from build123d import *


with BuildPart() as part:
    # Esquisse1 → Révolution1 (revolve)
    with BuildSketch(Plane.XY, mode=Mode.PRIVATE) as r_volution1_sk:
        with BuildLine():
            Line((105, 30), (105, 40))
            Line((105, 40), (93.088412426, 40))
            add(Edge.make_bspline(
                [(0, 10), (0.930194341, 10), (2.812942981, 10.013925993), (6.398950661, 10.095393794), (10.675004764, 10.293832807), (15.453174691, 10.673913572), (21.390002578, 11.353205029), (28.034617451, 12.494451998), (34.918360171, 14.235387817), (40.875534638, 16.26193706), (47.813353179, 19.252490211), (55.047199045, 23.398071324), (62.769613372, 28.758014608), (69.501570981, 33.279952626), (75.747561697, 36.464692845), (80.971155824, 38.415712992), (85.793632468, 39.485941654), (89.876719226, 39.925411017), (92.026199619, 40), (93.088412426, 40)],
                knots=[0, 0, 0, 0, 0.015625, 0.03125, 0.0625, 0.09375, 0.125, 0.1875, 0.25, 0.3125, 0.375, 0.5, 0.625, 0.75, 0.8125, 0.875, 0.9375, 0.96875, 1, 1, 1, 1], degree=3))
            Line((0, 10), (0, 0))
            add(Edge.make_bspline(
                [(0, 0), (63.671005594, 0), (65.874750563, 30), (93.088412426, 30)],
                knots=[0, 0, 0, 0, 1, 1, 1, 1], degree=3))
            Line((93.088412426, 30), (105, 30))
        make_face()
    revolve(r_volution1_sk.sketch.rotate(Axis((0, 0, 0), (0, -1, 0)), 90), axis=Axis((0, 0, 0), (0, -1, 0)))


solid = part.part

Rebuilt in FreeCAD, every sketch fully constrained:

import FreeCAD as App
import Part
import Sketcher

V = App.Vector

doc = App.newDocument("Part")
body = doc.addObject("PartDesign::Body", "Body")

# Sketch on XY plane
sketch1 = body.newObject("Sketcher::SketchObject", "Sketch")
sketch1.AttachmentSupport = (doc.getObject("XY_Plane"), [""])
sketch1.MapMode = "FlatFace"
sketch1.addGeometry([
    Part.LineSegment(V(105, 30, 0), V(105, 40, 0)),  # 0
    Part.LineSegment(V(105, 40, 0), V(93.088412, 40, 0)),  # 1
    Part.BSplineCurve([V(0, 10, 0), V(0.930194, 10, 0), V(2.812943, 10.013926, 0), V(6.398951, 10.095394, 0), V(10.675005, 10.293833, 0), V(15.453175, 10.673914, 0), V(21.390003, 11.353205, 0), V(28.034617, 12.494452, 0), V(34.91836, 14.235388, 0), V(40.875535, 16.261937, 0), V(47.813353, 19.25249, 0), V(55.047199, 23.398071, 0), V(62.769613, 28.758015, 0), V(69.501571, 33.279953, 0), V(75.747562, 36.464693, 0), V(80.971156, 38.415713, 0), V(85.793632, 39.485942, 0), V(89.876719, 39.925411, 0), V(92.0262, 40, 0), V(93.088412, 40, 0)], [4, 1, 1, 1, 1, 1, 1, 1, 1, 1, 1, 1, 1, 1, 1, 1, 1, 4], [0, 0.015625, 0.03125, 0.0625, 0.09375, 0.125, 0.1875, 0.25, 0.3125, 0.375, 0.5, 0.625, 0.75, 0.8125, 0.875, 0.9375, 0.96875, 1], False, 3, [1, 1, 1, 1, 1, 1, 1, 1, 1, 1, 1, 1, 1, 1, 1, 1, 1, 1, 1, 1], False),  # 2
    Part.LineSegment(V(0, 10, 0), V(0, 0, 0)),  # 3
    Part.BSplineCurve([V(0, 0, 0), V(63.671006, 0, 0), V(65.874751, 30, 0), V(93.088412, 30, 0)], [4, 4], [0, 1], False, 3, [1, 1, 1, 1], False),  # 4
    Part.LineSegment(V(93.088412, 30, 0), V(105, 30, 0)),  # 5
], False)
sketch1.addConstraint([
    Sketcher.Constraint("Block", 2),
    Sketcher.Constraint("Block", 4),
    Sketcher.Constraint("Coincident", 0, 2, 1, 1),
    Sketcher.Constraint("Coincident", 1, 2, 2, 2),
    Sketcher.Constraint("Coincident", 2, 1, 3, 1),
    Sketcher.Constraint("Coincident", 3, 2, 4, 1),
    Sketcher.Constraint("Coincident", 4, 2, 5, 1),
    Sketcher.Constraint("Coincident", 5, 2, 0, 1),
    Sketcher.Constraint("Vertical", 0),
    Sketcher.Constraint("Horizontal", 1),
    Sketcher.Constraint("Horizontal", 5),
    Sketcher.Constraint("DistanceX", -1, 1, 0, 2, 105.0),
])
revolution = body.newObject("PartDesign::Revolution", "Revolution")
revolution.Profile = sketch1
revolution.ReferenceAxis = (sketch1, ["V_Axis"])
revolution.Angle = 360

doc.recompute()
